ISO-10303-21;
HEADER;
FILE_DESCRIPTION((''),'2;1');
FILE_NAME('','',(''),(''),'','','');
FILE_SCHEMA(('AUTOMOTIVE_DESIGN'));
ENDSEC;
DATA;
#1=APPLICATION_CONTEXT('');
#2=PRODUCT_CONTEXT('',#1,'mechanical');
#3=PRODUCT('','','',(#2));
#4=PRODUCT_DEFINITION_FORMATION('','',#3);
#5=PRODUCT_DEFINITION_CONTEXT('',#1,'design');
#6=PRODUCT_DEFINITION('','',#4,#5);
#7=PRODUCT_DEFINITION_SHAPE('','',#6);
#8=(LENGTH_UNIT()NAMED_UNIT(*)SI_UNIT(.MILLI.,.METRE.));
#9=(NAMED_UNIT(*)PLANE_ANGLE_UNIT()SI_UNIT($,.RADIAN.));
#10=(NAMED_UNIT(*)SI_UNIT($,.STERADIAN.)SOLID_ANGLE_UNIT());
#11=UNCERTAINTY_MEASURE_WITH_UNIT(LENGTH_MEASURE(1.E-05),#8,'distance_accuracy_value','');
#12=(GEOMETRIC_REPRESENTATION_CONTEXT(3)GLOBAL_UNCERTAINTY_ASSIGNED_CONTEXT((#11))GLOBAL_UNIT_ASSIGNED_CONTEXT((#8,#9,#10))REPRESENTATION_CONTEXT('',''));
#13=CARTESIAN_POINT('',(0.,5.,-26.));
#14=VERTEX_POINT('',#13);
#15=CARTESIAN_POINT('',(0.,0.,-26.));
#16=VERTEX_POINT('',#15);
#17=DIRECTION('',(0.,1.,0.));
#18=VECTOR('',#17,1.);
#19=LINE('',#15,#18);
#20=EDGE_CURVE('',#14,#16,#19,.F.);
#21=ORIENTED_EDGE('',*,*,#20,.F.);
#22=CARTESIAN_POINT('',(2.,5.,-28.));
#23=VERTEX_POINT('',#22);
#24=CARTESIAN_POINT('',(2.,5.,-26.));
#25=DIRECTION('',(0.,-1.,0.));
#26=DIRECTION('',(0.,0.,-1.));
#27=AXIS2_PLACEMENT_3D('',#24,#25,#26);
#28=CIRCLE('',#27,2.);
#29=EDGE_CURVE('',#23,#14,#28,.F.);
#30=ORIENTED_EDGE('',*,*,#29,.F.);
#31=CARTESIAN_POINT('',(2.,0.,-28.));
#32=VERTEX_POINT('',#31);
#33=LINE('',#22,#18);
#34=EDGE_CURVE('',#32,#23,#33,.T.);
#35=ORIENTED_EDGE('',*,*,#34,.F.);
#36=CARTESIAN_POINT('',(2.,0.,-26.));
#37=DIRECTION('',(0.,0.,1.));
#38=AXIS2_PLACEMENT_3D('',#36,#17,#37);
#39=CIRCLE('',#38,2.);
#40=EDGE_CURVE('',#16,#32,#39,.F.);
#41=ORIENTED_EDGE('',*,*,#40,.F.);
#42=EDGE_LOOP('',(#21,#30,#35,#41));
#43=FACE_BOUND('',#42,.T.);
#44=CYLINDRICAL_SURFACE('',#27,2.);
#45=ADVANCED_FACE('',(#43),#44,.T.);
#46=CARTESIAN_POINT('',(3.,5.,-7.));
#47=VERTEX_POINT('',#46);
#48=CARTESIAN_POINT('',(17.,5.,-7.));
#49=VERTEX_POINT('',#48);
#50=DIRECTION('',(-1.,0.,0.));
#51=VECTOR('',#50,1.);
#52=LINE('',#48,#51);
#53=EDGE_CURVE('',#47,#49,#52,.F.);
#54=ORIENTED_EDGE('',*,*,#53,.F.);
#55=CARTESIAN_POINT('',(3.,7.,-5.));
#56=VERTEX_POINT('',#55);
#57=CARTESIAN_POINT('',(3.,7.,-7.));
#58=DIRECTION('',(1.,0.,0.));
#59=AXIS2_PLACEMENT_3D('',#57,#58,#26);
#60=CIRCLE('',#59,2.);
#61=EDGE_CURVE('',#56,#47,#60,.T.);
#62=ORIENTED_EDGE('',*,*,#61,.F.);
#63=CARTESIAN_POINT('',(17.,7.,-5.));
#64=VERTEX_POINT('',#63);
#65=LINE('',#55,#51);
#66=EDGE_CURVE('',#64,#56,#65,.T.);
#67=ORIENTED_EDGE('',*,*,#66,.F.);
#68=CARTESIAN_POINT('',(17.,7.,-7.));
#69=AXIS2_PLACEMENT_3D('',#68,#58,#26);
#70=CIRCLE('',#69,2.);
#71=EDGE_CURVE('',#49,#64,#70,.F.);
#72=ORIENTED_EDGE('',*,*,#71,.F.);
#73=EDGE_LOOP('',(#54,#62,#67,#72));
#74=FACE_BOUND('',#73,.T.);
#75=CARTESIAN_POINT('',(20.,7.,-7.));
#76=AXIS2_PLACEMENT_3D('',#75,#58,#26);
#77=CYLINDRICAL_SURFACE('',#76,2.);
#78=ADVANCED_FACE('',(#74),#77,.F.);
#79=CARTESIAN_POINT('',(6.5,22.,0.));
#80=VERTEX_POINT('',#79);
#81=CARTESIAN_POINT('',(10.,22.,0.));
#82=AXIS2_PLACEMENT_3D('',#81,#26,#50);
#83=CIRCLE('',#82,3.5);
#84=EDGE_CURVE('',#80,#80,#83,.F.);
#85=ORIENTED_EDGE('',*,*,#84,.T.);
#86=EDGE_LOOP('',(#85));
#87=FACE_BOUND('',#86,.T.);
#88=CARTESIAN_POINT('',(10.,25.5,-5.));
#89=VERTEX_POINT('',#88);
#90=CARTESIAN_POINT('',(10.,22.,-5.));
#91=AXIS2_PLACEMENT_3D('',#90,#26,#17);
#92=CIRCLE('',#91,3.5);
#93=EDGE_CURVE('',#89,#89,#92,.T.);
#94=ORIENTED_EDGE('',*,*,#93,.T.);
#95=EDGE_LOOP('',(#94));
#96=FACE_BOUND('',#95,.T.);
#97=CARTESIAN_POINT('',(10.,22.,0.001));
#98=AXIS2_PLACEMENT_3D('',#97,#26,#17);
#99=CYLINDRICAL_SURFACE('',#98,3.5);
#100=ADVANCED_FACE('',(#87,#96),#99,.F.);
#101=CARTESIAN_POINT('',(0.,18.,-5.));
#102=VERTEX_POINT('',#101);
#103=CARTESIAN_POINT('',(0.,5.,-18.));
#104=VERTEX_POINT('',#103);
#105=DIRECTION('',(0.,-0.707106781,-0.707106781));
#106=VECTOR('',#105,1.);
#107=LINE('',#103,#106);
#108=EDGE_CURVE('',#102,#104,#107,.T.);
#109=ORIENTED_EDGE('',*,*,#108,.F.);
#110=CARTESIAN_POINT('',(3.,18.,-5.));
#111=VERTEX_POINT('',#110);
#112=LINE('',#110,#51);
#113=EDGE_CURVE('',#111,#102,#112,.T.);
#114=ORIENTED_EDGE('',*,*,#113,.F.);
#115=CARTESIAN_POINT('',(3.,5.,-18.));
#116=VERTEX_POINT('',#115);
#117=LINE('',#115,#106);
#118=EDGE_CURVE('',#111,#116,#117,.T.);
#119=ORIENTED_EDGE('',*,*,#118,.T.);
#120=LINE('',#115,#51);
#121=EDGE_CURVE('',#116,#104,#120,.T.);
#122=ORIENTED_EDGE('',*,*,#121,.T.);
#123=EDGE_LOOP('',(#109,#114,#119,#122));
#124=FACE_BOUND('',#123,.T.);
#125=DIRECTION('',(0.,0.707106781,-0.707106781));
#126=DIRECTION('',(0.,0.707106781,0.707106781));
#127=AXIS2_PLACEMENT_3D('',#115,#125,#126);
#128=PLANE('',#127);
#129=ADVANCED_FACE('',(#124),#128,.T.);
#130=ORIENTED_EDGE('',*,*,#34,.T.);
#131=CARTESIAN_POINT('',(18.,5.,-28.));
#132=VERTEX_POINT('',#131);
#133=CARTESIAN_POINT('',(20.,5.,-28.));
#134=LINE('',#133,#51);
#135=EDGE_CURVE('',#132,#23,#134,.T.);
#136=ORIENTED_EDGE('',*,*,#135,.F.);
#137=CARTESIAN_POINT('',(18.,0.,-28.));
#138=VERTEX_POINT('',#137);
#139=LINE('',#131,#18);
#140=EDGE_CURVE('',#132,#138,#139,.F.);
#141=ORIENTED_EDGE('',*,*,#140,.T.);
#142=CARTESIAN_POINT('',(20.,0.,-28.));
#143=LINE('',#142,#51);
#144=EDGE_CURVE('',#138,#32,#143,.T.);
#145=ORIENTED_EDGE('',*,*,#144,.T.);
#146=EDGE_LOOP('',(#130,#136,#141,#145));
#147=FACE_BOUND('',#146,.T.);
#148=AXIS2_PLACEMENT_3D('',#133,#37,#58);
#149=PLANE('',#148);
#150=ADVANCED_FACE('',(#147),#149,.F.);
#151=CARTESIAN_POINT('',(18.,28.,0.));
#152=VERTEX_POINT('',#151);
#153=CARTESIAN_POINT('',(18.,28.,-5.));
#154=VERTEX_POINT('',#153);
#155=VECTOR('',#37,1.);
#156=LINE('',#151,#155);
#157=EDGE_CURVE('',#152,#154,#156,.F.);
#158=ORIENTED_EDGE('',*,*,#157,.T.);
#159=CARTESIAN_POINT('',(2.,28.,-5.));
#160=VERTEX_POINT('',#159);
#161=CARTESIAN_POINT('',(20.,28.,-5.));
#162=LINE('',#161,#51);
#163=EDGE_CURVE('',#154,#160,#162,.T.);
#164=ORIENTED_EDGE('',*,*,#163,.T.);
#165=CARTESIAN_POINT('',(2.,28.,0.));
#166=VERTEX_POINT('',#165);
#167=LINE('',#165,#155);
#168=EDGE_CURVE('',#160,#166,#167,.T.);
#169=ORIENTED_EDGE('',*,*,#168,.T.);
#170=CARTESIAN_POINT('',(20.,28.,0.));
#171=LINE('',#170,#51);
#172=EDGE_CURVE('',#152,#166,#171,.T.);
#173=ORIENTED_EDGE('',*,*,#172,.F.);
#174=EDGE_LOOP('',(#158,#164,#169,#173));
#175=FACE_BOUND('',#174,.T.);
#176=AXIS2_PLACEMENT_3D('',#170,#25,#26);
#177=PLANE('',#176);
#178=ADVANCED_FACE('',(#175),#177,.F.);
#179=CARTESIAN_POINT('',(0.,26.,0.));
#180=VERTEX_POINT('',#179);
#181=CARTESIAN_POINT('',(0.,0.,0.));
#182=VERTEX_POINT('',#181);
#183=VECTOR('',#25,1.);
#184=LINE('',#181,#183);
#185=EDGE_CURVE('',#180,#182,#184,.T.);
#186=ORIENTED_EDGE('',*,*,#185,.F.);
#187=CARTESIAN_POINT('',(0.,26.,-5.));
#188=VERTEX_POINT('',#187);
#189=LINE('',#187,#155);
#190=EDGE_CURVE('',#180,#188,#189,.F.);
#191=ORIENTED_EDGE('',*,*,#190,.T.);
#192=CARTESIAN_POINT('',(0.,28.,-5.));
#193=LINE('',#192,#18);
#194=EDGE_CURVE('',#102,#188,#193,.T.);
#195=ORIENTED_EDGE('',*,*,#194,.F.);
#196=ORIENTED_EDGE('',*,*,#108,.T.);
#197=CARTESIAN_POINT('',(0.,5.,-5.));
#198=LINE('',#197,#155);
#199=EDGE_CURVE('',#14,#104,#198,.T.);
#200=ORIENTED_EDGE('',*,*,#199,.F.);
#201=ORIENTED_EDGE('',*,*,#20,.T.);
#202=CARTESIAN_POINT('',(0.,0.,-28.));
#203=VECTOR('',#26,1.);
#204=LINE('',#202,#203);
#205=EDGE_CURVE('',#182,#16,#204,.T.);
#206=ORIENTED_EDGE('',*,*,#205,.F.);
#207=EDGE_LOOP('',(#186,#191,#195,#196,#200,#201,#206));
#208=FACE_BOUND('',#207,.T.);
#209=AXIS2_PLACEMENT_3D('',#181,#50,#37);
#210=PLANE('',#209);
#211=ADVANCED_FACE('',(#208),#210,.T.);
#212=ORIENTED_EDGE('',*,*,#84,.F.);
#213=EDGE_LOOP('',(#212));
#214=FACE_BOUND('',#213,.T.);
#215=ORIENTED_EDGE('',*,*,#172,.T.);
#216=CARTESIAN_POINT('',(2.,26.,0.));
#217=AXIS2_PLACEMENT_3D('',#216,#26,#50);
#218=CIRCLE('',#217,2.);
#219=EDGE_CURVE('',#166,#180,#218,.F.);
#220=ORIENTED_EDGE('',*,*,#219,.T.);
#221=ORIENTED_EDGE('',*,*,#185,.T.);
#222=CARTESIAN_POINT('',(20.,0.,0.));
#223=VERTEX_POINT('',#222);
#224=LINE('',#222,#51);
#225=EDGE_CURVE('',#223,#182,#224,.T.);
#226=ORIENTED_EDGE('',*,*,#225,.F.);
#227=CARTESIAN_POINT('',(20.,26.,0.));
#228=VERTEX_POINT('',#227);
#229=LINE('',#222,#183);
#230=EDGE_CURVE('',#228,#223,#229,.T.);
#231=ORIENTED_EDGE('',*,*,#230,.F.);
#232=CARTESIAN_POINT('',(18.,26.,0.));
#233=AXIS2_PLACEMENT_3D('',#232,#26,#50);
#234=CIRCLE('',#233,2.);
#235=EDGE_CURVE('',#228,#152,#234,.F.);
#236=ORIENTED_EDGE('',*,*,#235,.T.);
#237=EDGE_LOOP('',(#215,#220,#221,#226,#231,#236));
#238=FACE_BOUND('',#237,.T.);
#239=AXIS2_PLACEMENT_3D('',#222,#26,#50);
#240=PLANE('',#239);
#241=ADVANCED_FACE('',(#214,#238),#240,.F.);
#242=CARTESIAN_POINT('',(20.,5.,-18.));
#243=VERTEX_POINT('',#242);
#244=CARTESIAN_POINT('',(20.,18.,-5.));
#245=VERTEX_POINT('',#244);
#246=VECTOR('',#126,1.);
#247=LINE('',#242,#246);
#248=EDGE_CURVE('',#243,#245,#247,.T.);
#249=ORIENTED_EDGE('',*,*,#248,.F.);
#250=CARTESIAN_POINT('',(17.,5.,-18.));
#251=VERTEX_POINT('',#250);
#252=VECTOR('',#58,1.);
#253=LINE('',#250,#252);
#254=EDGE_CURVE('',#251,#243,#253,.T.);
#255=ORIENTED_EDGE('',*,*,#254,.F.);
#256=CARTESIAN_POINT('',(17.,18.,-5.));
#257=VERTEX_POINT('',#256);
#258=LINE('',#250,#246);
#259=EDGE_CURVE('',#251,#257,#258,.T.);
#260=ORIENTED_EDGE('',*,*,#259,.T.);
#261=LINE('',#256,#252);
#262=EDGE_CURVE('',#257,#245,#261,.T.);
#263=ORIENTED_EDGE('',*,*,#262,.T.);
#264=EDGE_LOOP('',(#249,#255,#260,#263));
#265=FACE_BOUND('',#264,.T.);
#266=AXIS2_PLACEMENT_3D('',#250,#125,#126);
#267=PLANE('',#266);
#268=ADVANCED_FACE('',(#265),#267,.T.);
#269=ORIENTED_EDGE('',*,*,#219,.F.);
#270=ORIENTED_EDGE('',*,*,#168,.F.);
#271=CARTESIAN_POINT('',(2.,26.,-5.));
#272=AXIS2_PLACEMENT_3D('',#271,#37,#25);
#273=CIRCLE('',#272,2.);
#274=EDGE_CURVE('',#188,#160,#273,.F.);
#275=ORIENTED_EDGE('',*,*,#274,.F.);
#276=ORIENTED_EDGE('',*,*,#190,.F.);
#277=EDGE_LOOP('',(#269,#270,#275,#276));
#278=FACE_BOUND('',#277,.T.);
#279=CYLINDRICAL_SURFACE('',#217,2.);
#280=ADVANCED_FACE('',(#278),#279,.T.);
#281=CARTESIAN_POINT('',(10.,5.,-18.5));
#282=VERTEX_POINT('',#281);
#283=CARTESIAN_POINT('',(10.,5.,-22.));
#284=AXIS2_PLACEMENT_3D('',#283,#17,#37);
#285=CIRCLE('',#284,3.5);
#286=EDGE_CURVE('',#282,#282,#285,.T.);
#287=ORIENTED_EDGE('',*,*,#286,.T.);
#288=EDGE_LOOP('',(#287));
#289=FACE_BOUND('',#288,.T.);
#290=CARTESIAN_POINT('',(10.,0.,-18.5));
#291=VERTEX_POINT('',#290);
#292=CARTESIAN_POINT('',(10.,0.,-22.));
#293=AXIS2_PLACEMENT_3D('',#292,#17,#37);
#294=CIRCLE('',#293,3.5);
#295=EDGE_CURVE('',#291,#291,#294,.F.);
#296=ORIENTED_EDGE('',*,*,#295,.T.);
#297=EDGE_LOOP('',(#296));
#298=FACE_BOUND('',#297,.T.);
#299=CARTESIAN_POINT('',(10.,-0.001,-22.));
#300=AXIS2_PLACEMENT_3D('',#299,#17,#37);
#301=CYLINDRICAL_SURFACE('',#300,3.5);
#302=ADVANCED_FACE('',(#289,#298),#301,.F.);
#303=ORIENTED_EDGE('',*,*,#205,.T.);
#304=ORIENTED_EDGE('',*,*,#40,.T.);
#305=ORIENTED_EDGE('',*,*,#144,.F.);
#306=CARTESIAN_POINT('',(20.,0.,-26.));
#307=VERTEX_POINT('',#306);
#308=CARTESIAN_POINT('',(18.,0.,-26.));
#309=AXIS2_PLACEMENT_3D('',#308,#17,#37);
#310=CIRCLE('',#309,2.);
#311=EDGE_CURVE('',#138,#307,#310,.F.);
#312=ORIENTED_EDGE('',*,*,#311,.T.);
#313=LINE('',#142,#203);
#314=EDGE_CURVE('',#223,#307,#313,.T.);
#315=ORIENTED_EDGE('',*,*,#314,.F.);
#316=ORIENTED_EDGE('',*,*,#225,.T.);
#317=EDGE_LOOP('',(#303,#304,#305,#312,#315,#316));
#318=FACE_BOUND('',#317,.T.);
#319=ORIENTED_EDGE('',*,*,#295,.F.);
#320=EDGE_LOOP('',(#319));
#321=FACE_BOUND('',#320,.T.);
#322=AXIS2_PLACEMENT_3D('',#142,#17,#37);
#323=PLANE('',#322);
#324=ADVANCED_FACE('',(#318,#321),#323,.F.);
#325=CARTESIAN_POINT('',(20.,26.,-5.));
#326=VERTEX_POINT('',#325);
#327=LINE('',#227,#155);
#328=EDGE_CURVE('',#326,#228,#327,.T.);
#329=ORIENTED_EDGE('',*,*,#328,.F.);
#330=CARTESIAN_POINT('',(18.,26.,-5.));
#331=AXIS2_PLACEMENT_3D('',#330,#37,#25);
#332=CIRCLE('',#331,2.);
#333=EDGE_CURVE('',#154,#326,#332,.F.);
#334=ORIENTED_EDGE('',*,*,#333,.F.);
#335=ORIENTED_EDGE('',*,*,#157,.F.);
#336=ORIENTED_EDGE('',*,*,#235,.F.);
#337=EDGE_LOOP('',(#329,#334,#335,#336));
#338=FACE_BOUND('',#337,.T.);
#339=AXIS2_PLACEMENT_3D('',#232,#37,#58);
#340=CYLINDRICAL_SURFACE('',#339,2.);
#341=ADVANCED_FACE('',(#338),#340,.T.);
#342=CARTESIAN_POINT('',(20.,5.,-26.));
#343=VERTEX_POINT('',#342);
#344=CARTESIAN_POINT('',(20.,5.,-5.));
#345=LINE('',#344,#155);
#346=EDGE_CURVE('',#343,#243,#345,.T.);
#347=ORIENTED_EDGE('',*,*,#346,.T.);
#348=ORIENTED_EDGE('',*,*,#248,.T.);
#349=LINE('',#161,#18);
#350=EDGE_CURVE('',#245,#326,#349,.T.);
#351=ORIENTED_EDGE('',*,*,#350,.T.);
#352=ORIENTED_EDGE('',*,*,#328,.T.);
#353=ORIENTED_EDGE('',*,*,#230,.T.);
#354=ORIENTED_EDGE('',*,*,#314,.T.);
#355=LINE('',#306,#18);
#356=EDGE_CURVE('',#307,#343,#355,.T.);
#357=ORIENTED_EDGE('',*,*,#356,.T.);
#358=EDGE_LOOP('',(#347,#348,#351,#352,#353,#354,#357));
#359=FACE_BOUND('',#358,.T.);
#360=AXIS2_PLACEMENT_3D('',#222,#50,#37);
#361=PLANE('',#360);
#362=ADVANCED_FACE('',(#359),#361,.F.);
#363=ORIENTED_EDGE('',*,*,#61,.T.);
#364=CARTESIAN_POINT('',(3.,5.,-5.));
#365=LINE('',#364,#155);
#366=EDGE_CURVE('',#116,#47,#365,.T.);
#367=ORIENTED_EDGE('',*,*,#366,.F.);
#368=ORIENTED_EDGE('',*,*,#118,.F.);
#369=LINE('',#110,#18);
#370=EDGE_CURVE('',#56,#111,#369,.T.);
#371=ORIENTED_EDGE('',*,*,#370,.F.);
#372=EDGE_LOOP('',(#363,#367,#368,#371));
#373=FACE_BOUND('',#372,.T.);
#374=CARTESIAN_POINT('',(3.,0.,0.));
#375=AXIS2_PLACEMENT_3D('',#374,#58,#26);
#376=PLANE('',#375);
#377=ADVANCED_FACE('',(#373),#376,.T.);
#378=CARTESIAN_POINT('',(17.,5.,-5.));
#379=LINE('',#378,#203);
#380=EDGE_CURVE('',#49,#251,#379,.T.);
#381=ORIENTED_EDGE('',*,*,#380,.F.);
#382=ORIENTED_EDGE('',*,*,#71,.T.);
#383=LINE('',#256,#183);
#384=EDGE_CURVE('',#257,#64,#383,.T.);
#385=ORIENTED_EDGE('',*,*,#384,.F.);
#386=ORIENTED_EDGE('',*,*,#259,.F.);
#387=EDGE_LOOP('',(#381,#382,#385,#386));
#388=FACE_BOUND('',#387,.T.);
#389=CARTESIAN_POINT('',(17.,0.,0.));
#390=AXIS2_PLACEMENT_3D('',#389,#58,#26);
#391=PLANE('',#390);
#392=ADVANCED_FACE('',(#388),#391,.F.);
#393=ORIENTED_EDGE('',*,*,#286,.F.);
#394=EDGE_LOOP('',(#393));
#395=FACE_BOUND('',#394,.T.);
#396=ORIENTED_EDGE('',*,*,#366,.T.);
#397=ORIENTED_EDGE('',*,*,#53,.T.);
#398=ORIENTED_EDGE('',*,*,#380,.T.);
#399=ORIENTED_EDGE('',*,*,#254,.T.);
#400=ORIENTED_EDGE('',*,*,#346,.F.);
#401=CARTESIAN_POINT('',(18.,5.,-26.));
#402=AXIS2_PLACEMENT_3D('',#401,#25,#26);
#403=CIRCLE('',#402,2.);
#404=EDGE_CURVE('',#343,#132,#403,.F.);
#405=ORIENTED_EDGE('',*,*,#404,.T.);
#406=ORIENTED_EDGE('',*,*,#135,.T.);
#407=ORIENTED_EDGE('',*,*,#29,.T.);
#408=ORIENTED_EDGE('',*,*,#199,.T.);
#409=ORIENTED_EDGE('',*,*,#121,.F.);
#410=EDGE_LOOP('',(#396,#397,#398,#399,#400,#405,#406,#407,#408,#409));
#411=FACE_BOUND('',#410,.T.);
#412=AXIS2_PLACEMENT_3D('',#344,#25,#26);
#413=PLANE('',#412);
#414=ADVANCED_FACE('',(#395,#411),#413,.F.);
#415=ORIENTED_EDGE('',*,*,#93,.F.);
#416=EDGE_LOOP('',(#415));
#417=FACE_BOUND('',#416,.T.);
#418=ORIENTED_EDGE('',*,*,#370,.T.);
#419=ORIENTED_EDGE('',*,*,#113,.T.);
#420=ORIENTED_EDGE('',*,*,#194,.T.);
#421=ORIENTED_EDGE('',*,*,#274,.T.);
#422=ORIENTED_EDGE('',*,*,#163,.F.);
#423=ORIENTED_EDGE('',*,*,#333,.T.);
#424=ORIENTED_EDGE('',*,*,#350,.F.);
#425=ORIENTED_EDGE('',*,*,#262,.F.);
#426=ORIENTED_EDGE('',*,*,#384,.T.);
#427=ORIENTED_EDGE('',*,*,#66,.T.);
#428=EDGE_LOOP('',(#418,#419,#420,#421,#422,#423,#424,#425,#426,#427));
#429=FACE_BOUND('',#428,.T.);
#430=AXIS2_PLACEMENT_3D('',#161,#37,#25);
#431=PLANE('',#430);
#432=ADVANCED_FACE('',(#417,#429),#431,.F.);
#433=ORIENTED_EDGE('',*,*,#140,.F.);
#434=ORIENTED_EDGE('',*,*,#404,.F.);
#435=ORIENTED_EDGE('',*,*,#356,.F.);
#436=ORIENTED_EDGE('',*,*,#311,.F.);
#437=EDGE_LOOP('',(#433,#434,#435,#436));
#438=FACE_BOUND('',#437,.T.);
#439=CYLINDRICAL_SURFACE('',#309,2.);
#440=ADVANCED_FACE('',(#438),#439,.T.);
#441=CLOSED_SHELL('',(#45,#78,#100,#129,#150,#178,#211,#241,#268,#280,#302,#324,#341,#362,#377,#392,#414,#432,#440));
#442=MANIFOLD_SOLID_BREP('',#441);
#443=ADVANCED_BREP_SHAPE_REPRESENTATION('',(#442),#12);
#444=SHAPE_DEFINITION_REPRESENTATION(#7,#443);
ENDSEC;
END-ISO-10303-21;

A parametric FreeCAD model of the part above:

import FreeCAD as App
import Part
import Sketcher
from FreeCAD import Vector


def edges_at(feature, points):
    """Names of the edges that pass closest to the given points."""
    edges = feature.Shape.Edges
    near = lambda p: min(range(len(edges)), key=lambda i: edges[i].distToShape(Part.Vertex(*p))[0])
    return sorted({f"Edge{near(p) + 1}" for p in points})

doc = App.newDocument("Part")
body = doc.addObject("PartDesign::Body", "Body")

# Sketch on YZ plane
sketch1 = body.newObject("Sketcher::SketchObject", "Sketch")
sketch1.AttachmentSupport = (doc.getObject("YZ_Plane"), [""])
sketch1.MapMode = "FlatFace"
sketch1.addGeometry([
    Part.LineSegment(Vector(28, 0, 0), Vector(0, 0, 0)),  # 0
    Part.LineSegment(Vector(0, 0, 0), Vector(0, -28, 0)),  # 1
    Part.LineSegment(Vector(0, -28, 0), Vector(5, -28, 0)),  # 2
    Part.LineSegment(Vector(5, -28, 0), Vector(5, -5, 0)),  # 3
    Part.LineSegment(Vector(5, -5, 0), Vector(28, -5, 0)),  # 4
    Part.LineSegment(Vector(28, -5, 0), Vector(28, 0, 0)),  # 5
], False)
sketch1.addConstraint([
    Sketcher.Constraint("Coincident", 0, 2, 1, 1),
    Sketcher.Constraint("Coincident", 1, 2, 2, 1),
    Sketcher.Constraint("Coincident", 2, 2, 3, 1),
    Sketcher.Constraint("Coincident", 3, 2, 4, 1),
    Sketcher.Constraint("Coincident", 4, 2, 5, 1),
    Sketcher.Constraint("Coincident", 5, 2, 0, 1),
    Sketcher.Constraint("Horizontal", 0),
    Sketcher.Constraint("Vertical", 1),
    Sketcher.Constraint("Horizontal", 2),
    Sketcher.Constraint("Vertical", 3),
    Sketcher.Constraint("Horizontal", 4),
    Sketcher.Constraint("Vertical", 5),
    Sketcher.Constraint("Coincident", 0, 2, -1, 1),
    Sketcher.Constraint("Equal", 0, 1),
    Sketcher.Constraint("Equal", 4, 3),
    Sketcher.Constraint("DistanceX", 0, 2, 0, 1, 28.0),
    Sketcher.Constraint("DistanceX", 2, 1, 2, 2, 5.0),
])
pad1 = body.newObject("PartDesign::Pad", "Pad")
pad1.Profile = sketch1
pad1.Length = 20

# Sketch on YZ plane
sketch2 = body.newObject("Sketcher::SketchObject", "Sketch001")
sketch2.AttachmentSupport = (doc.getObject("YZ_Plane"), [""])
sketch2.MapMode = "FlatFace"
sketch2.AttachmentOffset = App.Placement(Vector(0, 0, 20), App.Rotation())
sketch2.addGeometry([
    Part.LineSegment(Vector(18, -5, 0), Vector(5, -5, 0)),
    Part.LineSegment(Vector(5, -5, 0), Vector(5, -18, 0)),
    Part.LineSegment(Vector(5, -18, 0), Vector(18, -5, 0)),
], False)
sketch2.addConstraint([
    Sketcher.Constraint("Coincident", 0, 2, 1, 1),
    Sketcher.Constraint("Coincident", 1, 2, 2, 1),
    Sketcher.Constraint("Coincident", 2, 2, 0, 1),
    Sketcher.Constraint("Horizontal", 0),
    Sketcher.Constraint("Vertical", 1),
    Sketcher.Constraint("Equal", 0, 1),
    Sketcher.Constraint("DistanceX", 0, 2, 0, 1, 13.0),
    Sketcher.Constraint("DistanceX", -1, 1, 0, 2, 5.0),
    Sketcher.Constraint("DistanceY", 0, 2, -1, 1, 5.0),
])
pad2 = body.newObject("PartDesign::Pad", "Pad001")
pad2.Profile = sketch2
pad2.Length = 3
pad2.Reversed = True

# Sketch on YZ plane
sketch3 = body.newObject("Sketcher::SketchObject", "Sketch002")
sketch3.AttachmentSupport = (doc.getObject("YZ_Plane"), [""])
sketch3.MapMode = "FlatFace"
sketch3.addGeometry([
    Part.LineSegment(Vector(5, -5, 0), Vector(18, -5, 0)),
    Part.LineSegment(Vector(18, -5, 0), Vector(5, -18, 0)),
    Part.LineSegment(Vector(5, -18, 0), Vector(5, -5, 0)),
], False)
sketch3.addConstraint([
    Sketcher.Constraint("Coincident", 0, 2, 1, 1),
    Sketcher.Constraint("Coincident", 1, 2, 2, 1),
    Sketcher.Constraint("Coincident", 2, 2, 0, 1),
    Sketcher.Constraint("Horizontal", 0),
    Sketcher.Constraint("Vertical", 2),
    Sketcher.Constraint("Equal", 0, 2),
    Sketcher.Constraint("DistanceX", 0, 1, 0, 2, 13.0),
    Sketcher.Constraint("DistanceX", -1, 1, 0, 2, 18.0),
    Sketcher.Constraint("DistanceY", 0, 2, -1, 1, 5.0),
])
pad3 = body.newObject("PartDesign::Pad", "Pad002")
pad3.Profile = sketch3
pad3.Length = 3
doc.recompute()

fillet = body.newObject("PartDesign::Fillet", "Fillet")
fillet.Base = (pad3, edges_at(pad3, [
    (20, 28, -2.5),
    (10, 5, -5),
    (0, 28, -2.5),
    (0, 2.5, -28),
    (20, 2.5, -28),
]))
fillet.Radius = 2

# Sketch on XY plane
sketch4 = body.newObject("Sketcher::SketchObject", "Sketch003")
sketch4.AttachmentSupport = (doc.getObject("XY_Plane"), [""])
sketch4.MapMode = "FlatFace"
sketch4.AttachmentOffset = App.Placement(Vector(0, 0, -5), App.Rotation())
sketch4.addGeometry(Part.Circle(Vector(10, 22, 0), Vector(0, 0, 1), 3.5), False)
sketch4.addConstraint([
    Sketcher.Constraint("Diameter", 0, 7.0),
    Sketcher.Constraint("DistanceX", -1, 1, 0, 3, 10.0),
    Sketcher.Constraint("DistanceY", -1, 1, 0, 3, 22.0),
])
pocket1 = body.newObject("PartDesign::Pocket", "Pocket")
pocket1.Profile = sketch4
pocket1.Type = "UpToFirst"
pocket1.Reversed = True

# Sketch on XZ plane
sketch5 = body.newObject("Sketcher::SketchObject", "Sketch004")
sketch5.AttachmentSupport = (doc.getObject("XZ_Plane"), [""])
sketch5.MapMode = "FlatFace"
sketch5.AttachmentOffset = App.Placement(Vector(0, 0, -5), App.Rotation())
sketch5.addGeometry(Part.Circle(Vector(10, -22, 0), Vector(0, 0, 1), 3.5), False)
sketch5.addConstraint([
    Sketcher.Constraint("Diameter", 0, 7.0),
    Sketcher.Constraint("DistanceX", -1, 1, 0, 3, 10.0),
    Sketcher.Constraint("DistanceY", 0, 3, -1, 1, 22.0),
])
pocket2 = body.newObject("PartDesign::Pocket", "Pocket001")
pocket2.Profile = sketch5
pocket2.Type = "UpToFirst"
pocket2.Reversed = True

doc.recompute()
